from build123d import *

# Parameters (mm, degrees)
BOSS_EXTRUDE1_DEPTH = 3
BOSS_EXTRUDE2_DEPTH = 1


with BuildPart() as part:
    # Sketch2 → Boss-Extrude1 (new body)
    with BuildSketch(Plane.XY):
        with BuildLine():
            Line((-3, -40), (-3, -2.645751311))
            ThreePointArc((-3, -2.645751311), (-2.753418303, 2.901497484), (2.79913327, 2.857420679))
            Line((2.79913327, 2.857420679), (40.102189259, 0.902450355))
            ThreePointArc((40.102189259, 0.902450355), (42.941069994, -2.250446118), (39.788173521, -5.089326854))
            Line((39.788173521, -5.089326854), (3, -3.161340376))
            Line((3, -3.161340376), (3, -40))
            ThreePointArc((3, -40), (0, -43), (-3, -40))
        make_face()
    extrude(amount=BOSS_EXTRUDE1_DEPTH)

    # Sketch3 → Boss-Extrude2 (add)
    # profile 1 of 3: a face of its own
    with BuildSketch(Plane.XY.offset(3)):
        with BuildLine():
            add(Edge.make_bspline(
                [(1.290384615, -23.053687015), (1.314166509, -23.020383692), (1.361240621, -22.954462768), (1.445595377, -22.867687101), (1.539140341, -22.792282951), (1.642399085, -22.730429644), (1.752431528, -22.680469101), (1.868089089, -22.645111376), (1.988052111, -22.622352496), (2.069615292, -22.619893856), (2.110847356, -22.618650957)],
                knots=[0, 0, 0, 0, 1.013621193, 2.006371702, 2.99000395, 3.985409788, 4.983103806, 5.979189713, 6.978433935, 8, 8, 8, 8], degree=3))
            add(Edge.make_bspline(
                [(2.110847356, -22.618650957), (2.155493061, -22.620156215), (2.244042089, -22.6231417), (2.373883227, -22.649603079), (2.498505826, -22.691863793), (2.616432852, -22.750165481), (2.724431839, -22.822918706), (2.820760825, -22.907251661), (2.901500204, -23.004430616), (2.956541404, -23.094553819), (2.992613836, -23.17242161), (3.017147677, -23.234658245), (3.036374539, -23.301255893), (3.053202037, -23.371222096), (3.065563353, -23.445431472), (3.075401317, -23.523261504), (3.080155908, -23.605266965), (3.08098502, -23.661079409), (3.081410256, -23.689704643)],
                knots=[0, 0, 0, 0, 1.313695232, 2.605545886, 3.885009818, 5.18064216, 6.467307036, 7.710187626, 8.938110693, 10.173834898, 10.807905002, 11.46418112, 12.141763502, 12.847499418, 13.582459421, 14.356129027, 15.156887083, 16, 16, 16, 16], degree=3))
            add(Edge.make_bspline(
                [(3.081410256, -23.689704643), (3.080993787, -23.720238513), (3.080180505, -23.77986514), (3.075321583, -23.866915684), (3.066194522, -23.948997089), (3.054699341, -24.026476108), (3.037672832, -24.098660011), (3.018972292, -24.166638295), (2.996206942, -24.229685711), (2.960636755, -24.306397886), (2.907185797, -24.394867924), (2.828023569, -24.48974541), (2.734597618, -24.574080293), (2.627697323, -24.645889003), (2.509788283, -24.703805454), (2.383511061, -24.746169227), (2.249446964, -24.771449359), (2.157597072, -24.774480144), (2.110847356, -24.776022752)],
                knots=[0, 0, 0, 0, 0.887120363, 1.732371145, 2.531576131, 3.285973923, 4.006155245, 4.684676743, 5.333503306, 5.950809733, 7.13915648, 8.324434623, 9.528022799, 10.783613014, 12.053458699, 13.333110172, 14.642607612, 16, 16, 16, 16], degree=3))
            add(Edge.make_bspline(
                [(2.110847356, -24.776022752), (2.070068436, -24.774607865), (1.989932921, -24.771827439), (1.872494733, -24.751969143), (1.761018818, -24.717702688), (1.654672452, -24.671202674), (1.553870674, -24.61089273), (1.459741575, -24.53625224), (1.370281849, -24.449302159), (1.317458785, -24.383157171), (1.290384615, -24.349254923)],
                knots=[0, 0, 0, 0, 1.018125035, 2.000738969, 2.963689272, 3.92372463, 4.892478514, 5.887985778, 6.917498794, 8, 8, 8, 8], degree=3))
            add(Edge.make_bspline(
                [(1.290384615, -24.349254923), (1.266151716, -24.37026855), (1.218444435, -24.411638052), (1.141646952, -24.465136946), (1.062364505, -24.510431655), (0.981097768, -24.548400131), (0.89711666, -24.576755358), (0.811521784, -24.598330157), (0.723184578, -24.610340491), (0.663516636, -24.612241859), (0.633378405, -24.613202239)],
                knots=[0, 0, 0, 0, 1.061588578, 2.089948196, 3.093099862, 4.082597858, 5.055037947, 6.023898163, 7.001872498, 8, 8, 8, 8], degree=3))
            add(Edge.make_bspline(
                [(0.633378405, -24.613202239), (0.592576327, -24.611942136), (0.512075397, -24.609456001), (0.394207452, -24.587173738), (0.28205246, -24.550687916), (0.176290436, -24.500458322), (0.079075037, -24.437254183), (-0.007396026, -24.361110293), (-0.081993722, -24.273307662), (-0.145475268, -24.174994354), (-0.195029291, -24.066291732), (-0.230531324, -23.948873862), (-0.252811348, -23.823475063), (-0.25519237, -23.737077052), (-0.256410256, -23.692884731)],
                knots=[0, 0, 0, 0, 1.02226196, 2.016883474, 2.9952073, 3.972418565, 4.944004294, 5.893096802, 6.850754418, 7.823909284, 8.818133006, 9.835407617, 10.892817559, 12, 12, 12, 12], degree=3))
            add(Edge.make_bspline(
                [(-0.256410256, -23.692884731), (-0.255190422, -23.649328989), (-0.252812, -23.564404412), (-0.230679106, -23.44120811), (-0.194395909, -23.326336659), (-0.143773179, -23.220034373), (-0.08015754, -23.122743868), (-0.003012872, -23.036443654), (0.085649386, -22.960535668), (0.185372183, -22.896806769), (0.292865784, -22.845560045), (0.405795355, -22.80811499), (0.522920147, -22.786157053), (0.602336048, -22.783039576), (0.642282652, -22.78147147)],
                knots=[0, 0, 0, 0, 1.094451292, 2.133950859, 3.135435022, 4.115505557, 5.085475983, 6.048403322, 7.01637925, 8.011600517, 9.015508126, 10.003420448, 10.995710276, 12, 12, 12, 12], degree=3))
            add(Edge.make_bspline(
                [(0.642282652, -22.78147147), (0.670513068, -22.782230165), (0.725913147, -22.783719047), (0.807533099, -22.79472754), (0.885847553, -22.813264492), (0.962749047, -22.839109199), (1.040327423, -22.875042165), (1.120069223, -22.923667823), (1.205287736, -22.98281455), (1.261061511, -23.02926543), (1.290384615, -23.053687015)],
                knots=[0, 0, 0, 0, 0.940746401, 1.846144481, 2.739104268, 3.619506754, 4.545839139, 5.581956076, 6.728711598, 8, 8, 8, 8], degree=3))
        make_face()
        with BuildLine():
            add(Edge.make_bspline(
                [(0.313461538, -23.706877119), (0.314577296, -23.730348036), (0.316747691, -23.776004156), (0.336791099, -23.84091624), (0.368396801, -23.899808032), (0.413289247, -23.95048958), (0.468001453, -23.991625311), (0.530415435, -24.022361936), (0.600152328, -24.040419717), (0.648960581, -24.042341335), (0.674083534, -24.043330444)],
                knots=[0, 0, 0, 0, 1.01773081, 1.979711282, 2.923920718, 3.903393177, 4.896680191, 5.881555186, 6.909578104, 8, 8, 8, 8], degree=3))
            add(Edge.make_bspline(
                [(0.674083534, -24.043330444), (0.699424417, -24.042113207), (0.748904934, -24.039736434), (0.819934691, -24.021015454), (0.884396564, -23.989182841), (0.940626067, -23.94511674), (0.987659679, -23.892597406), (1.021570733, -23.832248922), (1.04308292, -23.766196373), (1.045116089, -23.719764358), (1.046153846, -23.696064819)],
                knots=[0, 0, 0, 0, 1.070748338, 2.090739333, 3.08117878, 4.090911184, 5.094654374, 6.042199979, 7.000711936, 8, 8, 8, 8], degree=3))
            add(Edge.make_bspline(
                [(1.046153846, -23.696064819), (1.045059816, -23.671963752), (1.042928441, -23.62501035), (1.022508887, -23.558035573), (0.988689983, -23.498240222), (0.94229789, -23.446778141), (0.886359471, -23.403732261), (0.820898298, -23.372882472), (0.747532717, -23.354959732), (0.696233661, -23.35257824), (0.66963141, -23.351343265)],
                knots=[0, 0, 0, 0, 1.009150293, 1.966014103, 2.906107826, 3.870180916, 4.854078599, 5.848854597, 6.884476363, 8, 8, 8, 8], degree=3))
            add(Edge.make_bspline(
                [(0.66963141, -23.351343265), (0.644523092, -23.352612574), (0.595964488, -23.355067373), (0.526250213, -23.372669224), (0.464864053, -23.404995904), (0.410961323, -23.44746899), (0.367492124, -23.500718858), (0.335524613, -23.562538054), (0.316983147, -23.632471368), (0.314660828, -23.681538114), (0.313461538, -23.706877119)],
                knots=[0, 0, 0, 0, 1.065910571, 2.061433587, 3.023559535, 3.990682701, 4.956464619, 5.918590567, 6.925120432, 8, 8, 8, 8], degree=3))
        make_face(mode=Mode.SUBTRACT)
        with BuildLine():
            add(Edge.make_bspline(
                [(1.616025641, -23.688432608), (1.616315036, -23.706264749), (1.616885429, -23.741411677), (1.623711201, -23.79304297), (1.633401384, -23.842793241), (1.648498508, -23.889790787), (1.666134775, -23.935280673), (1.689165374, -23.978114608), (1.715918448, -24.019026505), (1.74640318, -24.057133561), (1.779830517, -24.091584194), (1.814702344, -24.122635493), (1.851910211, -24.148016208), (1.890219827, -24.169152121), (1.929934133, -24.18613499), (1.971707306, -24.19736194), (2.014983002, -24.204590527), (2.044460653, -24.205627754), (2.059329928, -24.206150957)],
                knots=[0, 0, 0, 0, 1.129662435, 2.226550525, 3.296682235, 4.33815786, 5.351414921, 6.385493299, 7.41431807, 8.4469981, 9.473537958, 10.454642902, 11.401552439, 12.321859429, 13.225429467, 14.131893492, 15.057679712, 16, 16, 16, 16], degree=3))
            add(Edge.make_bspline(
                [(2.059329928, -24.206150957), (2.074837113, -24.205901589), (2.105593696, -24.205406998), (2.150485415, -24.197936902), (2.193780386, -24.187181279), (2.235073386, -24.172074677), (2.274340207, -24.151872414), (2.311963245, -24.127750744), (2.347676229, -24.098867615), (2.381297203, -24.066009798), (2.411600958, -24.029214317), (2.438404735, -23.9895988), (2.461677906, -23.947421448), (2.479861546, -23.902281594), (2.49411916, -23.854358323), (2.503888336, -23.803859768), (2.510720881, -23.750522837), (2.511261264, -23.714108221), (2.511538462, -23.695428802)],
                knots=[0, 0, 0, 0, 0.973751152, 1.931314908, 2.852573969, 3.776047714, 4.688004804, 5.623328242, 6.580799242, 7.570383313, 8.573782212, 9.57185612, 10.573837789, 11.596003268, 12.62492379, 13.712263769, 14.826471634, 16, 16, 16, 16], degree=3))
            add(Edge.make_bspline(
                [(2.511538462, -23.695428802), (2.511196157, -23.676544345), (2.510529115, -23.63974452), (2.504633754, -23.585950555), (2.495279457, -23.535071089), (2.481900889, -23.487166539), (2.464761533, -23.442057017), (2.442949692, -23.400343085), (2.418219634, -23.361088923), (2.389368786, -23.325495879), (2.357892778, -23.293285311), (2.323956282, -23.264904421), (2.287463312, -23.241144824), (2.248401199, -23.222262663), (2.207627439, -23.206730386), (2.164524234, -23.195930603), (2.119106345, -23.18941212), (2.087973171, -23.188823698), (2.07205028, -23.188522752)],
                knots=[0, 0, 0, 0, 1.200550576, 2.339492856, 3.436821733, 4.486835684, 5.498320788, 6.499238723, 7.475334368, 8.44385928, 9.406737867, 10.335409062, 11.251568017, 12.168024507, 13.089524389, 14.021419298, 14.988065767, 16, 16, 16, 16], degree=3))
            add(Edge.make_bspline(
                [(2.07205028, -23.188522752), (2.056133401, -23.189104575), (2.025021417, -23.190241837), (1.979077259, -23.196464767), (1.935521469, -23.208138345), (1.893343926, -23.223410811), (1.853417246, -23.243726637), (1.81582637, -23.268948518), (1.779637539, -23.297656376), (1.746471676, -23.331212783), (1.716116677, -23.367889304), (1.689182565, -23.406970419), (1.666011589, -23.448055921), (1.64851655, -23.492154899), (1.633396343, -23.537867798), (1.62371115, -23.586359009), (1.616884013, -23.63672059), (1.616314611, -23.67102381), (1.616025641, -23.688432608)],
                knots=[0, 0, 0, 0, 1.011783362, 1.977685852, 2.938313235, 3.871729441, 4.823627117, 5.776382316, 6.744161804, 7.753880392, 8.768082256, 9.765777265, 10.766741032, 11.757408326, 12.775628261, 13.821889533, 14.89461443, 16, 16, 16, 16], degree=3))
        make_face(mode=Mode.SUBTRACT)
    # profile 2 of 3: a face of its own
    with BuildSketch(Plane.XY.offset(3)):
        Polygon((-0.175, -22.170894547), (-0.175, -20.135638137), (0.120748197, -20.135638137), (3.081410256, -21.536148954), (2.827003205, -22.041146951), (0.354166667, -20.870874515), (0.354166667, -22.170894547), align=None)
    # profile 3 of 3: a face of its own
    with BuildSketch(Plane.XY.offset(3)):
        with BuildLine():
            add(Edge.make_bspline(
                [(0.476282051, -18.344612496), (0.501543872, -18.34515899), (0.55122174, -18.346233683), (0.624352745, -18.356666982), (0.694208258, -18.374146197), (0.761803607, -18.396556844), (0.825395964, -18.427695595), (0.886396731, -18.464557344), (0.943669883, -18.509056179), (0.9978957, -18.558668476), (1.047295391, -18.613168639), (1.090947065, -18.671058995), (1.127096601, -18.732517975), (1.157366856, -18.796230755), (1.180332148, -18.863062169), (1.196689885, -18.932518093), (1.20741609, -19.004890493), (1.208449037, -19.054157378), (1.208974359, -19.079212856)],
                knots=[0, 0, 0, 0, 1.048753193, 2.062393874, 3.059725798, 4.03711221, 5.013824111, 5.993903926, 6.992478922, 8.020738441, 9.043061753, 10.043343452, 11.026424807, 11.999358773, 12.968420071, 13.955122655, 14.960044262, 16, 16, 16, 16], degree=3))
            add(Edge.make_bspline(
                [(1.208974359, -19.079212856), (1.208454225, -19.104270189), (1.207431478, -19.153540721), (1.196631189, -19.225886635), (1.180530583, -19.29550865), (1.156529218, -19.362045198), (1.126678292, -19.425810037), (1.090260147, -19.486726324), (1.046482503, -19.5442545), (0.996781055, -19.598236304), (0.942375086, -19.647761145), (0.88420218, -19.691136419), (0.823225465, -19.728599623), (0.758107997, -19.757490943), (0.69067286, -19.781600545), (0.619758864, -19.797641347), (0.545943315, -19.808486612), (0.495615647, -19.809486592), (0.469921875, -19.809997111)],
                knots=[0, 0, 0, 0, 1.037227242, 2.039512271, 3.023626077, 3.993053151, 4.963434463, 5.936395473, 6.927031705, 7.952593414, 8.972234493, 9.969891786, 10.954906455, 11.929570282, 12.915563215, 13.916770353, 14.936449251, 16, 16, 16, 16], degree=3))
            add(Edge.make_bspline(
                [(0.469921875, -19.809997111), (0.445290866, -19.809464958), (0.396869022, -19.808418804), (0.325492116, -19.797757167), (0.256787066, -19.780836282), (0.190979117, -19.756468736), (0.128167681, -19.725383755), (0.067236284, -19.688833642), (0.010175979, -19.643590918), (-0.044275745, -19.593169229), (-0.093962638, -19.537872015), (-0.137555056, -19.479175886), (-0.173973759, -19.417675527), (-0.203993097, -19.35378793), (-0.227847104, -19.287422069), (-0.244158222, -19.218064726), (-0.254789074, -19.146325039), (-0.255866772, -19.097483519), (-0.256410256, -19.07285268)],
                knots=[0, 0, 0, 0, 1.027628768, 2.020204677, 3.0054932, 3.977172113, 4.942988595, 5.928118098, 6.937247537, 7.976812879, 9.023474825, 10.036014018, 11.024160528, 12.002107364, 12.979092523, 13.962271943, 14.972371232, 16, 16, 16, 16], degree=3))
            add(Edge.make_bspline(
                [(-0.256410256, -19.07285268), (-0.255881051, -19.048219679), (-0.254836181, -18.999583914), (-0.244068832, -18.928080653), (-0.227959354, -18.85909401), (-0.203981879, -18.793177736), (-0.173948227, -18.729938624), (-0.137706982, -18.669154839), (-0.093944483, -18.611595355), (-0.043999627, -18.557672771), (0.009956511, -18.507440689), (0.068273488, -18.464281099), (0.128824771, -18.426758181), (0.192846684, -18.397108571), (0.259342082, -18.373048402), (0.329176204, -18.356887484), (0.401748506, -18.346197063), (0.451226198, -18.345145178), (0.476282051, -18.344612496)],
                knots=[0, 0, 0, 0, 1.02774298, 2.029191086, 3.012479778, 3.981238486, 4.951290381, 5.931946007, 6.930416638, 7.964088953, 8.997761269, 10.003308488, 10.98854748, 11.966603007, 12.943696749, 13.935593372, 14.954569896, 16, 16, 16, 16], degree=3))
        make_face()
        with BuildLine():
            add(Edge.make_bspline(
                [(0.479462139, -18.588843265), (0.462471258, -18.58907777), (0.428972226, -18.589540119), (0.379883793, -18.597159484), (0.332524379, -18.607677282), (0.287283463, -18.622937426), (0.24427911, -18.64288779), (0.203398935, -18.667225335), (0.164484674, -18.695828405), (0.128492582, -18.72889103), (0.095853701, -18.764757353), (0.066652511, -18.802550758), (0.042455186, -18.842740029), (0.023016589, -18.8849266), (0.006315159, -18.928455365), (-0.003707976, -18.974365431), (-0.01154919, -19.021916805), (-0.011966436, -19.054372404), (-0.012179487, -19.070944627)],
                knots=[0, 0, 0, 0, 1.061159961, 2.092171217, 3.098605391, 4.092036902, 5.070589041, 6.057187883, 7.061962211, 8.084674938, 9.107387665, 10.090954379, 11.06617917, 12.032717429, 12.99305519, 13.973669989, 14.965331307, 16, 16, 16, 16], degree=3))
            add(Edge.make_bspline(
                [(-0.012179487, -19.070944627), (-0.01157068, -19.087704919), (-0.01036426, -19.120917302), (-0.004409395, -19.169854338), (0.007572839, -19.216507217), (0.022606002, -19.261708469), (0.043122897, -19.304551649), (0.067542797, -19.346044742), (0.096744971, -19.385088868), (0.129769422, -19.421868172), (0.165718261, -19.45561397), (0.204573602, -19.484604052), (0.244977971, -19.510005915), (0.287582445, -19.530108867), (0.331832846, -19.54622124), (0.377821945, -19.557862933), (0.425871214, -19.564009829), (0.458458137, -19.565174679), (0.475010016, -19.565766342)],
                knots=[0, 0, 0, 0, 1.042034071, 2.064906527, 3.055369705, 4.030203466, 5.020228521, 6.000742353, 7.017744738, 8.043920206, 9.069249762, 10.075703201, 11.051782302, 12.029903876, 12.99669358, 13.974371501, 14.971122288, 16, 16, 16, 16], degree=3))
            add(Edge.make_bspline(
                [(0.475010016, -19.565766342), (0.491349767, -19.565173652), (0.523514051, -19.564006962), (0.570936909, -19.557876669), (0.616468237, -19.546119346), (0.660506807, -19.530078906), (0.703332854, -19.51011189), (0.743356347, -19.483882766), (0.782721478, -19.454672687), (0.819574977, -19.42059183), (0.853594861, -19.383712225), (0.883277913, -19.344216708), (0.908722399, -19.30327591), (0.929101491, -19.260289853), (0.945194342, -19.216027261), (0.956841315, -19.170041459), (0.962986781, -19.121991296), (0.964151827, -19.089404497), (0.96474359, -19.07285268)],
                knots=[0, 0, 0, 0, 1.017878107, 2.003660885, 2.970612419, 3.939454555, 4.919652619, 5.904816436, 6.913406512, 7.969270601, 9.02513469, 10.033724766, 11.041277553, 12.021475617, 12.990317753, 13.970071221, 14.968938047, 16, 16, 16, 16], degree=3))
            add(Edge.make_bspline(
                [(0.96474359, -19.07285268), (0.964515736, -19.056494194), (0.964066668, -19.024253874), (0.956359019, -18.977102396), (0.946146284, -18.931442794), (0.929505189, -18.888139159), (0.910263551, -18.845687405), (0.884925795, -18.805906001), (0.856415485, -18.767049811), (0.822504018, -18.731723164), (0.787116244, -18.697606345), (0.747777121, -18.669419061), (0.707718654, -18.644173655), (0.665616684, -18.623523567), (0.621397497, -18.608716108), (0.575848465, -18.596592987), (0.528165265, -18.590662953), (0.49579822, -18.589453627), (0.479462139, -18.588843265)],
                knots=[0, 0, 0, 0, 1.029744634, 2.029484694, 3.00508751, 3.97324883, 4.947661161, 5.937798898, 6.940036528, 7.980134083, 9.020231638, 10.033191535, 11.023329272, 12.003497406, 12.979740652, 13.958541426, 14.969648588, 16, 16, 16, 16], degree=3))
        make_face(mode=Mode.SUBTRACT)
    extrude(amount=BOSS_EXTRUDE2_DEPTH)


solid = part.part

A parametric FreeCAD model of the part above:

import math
import FreeCAD as App
import Part
import Sketcher
Q = App.Units.Quantity


def add_polygon(sketch, points):
    """Adds a closed chain of lines whose ends are joined by coincident constraints."""
    first, n = sketch.GeometryCount, len(points)
    for a, b in zip(points, points[1:] + points[:1]):
        sketch.addGeometry(Part.LineSegment(App.Vector(*a, 0), App.Vector(*b, 0)), False)
    for i in range(n):
        sketch.addConstraint(Sketcher.Constraint("Coincident", first + i, 2, first + (i + 1) % n, 1))

doc = App.newDocument("Part")
params = doc.addObject("Spreadsheet::Sheet", "Params")
for row, (alias, value) in enumerate([
    ("sketch1_radius", "3 mm"),
    ("sketch1_radius2", "4 mm"),
    ("pad1_length", "3 mm"),
    ("pad2_length", "1 mm"),
], start=1):
    params.set(f"A{row}", alias)
    params.set(f"B{row}", "=" + value)
    params.setAlias(f"B{row}", alias)

body = doc.addObject("PartDesign::Body", "Body")

# Sketch on XY plane
sketch1 = body.newObject("Sketcher::SketchObject", "Sketch")
sketch1.AttachmentSupport = (doc.getObject("XY_Plane"), [""])
sketch1.MapMode = "FlatFace"
sketch1.addGeometry([
    Part.LineSegment(App.Vector(-3, -2.645751, 0), App.Vector(-3, -40, 0)),  # 0
    Part.ArcOfCircle(Part.Circle(App.Vector(0, -40, 0), App.Vector(0, 0, 1), 3), math.radians(180), math.radians(360)),  # 1
    Part.LineSegment(App.Vector(3, -40, 0), App.Vector(3, -3.16134, 0)),  # 2
    Part.LineSegment(App.Vector(3, -3.16134, 0), App.Vector(39.788174, -5.089327, 0)),  # 3
    Part.ArcOfCircle(Part.Circle(App.Vector(39.945181, -2.093438, 0), App.Vector(0, 0, 1), 3), math.radians(-93), math.radians(87)),  # 4
    Part.LineSegment(App.Vector(40.102189, 0.90245, 0), App.Vector(2.799133, 2.857421, 0)),  # 5
    Part.ArcOfCircle(Part.Circle(App.Vector(0, 0, 0), App.Vector(0, 0, 1), 4), math.radians(45.590378), math.radians(221.409622)),  # 6
], False)
sketch1.addConstraint([
    Sketcher.Constraint("Tangent", 0, 2, 1, 1),
    Sketcher.Constraint("Tangent", 1, 2, 2, 1),
    Sketcher.Constraint("Coincident", 2, 2, 3, 1),
    Sketcher.Constraint("Tangent", 3, 2, 4, 1),
    Sketcher.Constraint("Tangent", 4, 2, 5, 1),
    Sketcher.Constraint("Coincident", 5, 2, 6, 1),
    Sketcher.Constraint("Coincident", 6, 2, 0, 1),
    Sketcher.Constraint("Vertical", 0),
    Sketcher.Constraint("Vertical", 2),
    Sketcher.Constraint("Coincident", 6, 3, -1, 1),
    Sketcher.Constraint("Equal", 1, 4),
    Sketcher.Constraint("PointOnObject", 1, 3, -2),
    Sketcher.Constraint("Parallel", 3, 5),
    Sketcher.Constraint("Radius", 1, 3.0),
    Sketcher.Constraint("Radius", 6, 4.0),
    Sketcher.Constraint("Angle", 3, Q("-3 deg")),
    Sketcher.Constraint("DistanceY", 1, 3, -1, 1, 40.0),
    Sketcher.Constraint("DistanceY", 2, 1, 2, 2, 36.83866),
    Sketcher.Constraint("Distance", 3, 36.83866),
])
sketch1.setExpression("Constraints[13]", "Params.sketch1_radius")
sketch1.setExpression("Constraints[14]", "Params.sketch1_radius2")
pad1 = body.newObject("PartDesign::Pad", "Pad")
pad1.Profile = sketch1
pad1.setExpression("Length", "Params.pad1_length")

# Sketch on XY plane
sketch2 = body.newObject("Sketcher::SketchObject", "Sketch001")
sketch2.AttachmentSupport = (doc.getObject("XY_Plane"), [""])
sketch2.MapMode = "FlatFace"
sketch2.AttachmentOffset = App.Placement(App.Vector(0, 0, 3), App.Rotation())
sketch2.addGeometry(Part.BSplineCurve([App.Vector(1.290385, -23.053687, 0), App.Vector(1.314167, -23.020384, 0), App.Vector(1.361241, -22.954463, 0), App.Vector(1.445595, -22.867687, 0), App.Vector(1.53914, -22.792283, 0), App.Vector(1.642399, -22.73043, 0), App.Vector(1.752432, -22.680469, 0), App.Vector(1.868089, -22.645111, 0), App.Vector(1.988052, -22.622352, 0), App.Vector(2.069615, -22.619894, 0), App.Vector(2.110847, -22.618651, 0)], [4, 1, 1, 1, 1, 1, 1, 1, 4], [0, 1.013621193, 2.006371702, 2.99000395, 3.985409788, 4.983103806, 5.979189713, 6.978433935, 8], False, 3, [1, 1, 1, 1, 1, 1, 1, 1, 1, 1, 1], False), False)  # 0
sketch2.addGeometry(Part.BSplineCurve([App.Vector(0.642283, -22.781471, 0), App.Vector(0.670513, -22.78223, 0), App.Vector(0.725913, -22.783719, 0), App.Vector(0.807533, -22.794728, 0), App.Vector(0.885848, -22.813264, 0), App.Vector(0.962749, -22.839109, 0), App.Vector(1.040327, -22.875042, 0), App.Vector(1.120069, -22.923668, 0), App.Vector(1.205288, -22.982815, 0), App.Vector(1.261062, -23.029265, 0), App.Vector(1.290385, -23.053687, 0)], [4, 1, 1, 1, 1, 1, 1, 1, 4], [0, 0.940746401, 1.846144481, 2.739104268, 3.619506754, 4.545839139, 5.581956076, 6.728711598, 8], False, 3, [1, 1, 1, 1, 1, 1, 1, 1, 1, 1, 1], False), False)  # 1
sketch2.addGeometry(Part.BSplineCurve([App.Vector(-0.25641, -23.692885, 0), App.Vector(-0.25519, -23.649329, 0), App.Vector(-0.252812, -23.564404, 0), App.Vector(-0.230679, -23.441208, 0), App.Vector(-0.194396, -23.326337, 0), App.Vector(-0.143773, -23.220034, 0), App.Vector(-0.080158, -23.122744, 0), App.Vector(-0.003013, -23.036444, 0), App.Vector(0.085649, -22.960536, 0), App.Vector(0.185372, -22.896807, 0), App.Vector(0.292866, -22.84556, 0), App.Vector(0.405795, -22.808115, 0), App.Vector(0.52292, -22.786157, 0), App.Vector(0.602336, -22.78304, 0), App.Vector(0.642283, -22.781471, 0)], [4, 1, 1, 1, 1, 1, 1, 1, 1, 1, 1, 1, 4], [0, 1.094451292, 2.133950859, 3.135435022, 4.115505557, 5.085475983, 6.048403322, 7.01637925, 8.011600517, 9.015508126, 10.003420448, 10.995710276, 12], False, 3, [1, 1, 1, 1, 1, 1, 1, 1, 1, 1, 1, 1, 1, 1, 1], False), False)  # 2
sketch2.addGeometry(Part.BSplineCurve([App.Vector(0.633378, -24.613202, 0), App.Vector(0.592576, -24.611942, 0), App.Vector(0.512075, -24.609456, 0), App.Vector(0.394207, -24.587174, 0), App.Vector(0.282052, -24.550688, 0), App.Vector(0.17629, -24.500458, 0), App.Vector(0.079075, -24.437254, 0), App.Vector(-0.007396, -24.36111, 0), App.Vector(-0.081994, -24.273308, 0), App.Vector(-0.145475, -24.174994, 0), App.Vector(-0.195029, -24.066292, 0), App.Vector(-0.230531, -23.948874, 0), App.Vector(-0.252811, -23.823475, 0), App.Vector(-0.255192, -23.737077, 0), App.Vector(-0.25641, -23.692885, 0)], [4, 1, 1, 1, 1, 1, 1, 1, 1, 1, 1, 1, 4], [0, 1.02226196, 2.016883474, 2.9952073, 3.972418565, 4.944004294, 5.893096802, 6.850754418, 7.823909284, 8.818133006, 9.835407617, 10.892817559, 12], False, 3, [1, 1, 1, 1, 1, 1, 1, 1, 1, 1, 1, 1, 1, 1, 1], False), False)  # 3
sketch2.addGeometry(Part.BSplineCurve([App.Vector(1.290385, -24.349255, 0), App.Vector(1.266152, -24.370269, 0), App.Vector(1.218444, -24.411638, 0), App.Vector(1.141647, -24.465137, 0), App.Vector(1.062365, -24.510432, 0), App.Vector(0.981098, -24.5484, 0), App.Vector(0.897117, -24.576755, 0), App.Vector(0.811522, -24.59833, 0), App.Vector(0.723185, -24.61034, 0), App.Vector(0.663517, -24.612242, 0), App.Vector(0.633378, -24.613202, 0)], [4, 1, 1, 1, 1, 1, 1, 1, 4], [0, 1.061588578, 2.089948196, 3.093099862, 4.082597858, 5.055037947, 6.023898163, 7.001872498, 8], False, 3, [1, 1, 1, 1, 1, 1, 1, 1, 1, 1, 1], False), False)  # 4
sketch2.addGeometry(Part.BSplineCurve([App.Vector(2.110847, -24.776023, 0), App.Vector(2.070068, -24.774608, 0), App.Vector(1.989933, -24.771827, 0), App.Vector(1.872495, -24.751969, 0), App.Vector(1.761019, -24.717703, 0), App.Vector(1.654672, -24.671203, 0), App.Vector(1.553871, -24.610893, 0), App.Vector(1.459742, -24.536252, 0), App.Vector(1.370282, -24.449302, 0), App.Vector(1.317459, -24.383157, 0), App.Vector(1.290385, -24.349255, 0)], [4, 1, 1, 1, 1, 1, 1, 1, 4], [0, 1.018125035, 2.000738969, 2.963689272, 3.92372463, 4.892478514, 5.887985778, 6.917498794, 8], False, 3, [1, 1, 1, 1, 1, 1, 1, 1, 1, 1, 1], False), False)  # 5
sketch2.addGeometry(Part.BSplineCurve([App.Vector(3.08141, -23.689705, 0), App.Vector(3.080994, -23.720239, 0), App.Vector(3.080181, -23.779865, 0), App.Vector(3.075322, -23.866916, 0), App.Vector(3.066195, -23.948997, 0), App.Vector(3.054699, -24.026476, 0), App.Vector(3.037673, -24.09866, 0), App.Vector(3.018972, -24.166638, 0), App.Vector(2.996207, -24.229686, 0), App.Vector(2.960637, -24.306398, 0), App.Vector(2.907186, -24.394868, 0), App.Vector(2.828024, -24.489745, 0), App.Vector(2.734598, -24.57408, 0), App.Vector(2.627697, -24.645889, 0), App.Vector(2.509788, -24.703805, 0), App.Vector(2.383511, -24.746169, 0), App.Vector(2.249447, -24.771449, 0), App.Vector(2.157597, -24.77448, 0), App.Vector(2.110847, -24.776023, 0)], [4, 1, 1, 1, 1, 1, 1, 1, 1, 1, 1, 1, 1, 1, 1, 1, 4], [0, 0.887120363, 1.732371145, 2.531576131, 3.285973923, 4.006155245, 4.684676743, 5.333503306, 5.950809733, 7.13915648, 8.324434623, 9.528022799, 10.783613014, 12.053458699, 13.333110172, 14.642607612, 16], False, 3, [1, 1, 1, 1, 1, 1, 1, 1, 1, 1, 1, 1, 1, 1, 1, 1, 1, 1, 1], False), False)  # 6
sketch2.addGeometry(Part.BSplineCurve([App.Vector(2.110847, -22.618651, 0), App.Vector(2.155493, -22.620156, 0), App.Vector(2.244042, -22.623142, 0), App.Vector(2.373883, -22.649603, 0), App.Vector(2.498506, -22.691864, 0), App.Vector(2.616433, -22.750165, 0), App.Vector(2.724432, -22.822919, 0), App.Vector(2.820761, -22.907252, 0), App.Vector(2.9015, -23.004431, 0), App.Vector(2.956541, -23.094554, 0), App.Vector(2.992614, -23.172422, 0), App.Vector(3.017148, -23.234658, 0), App.Vector(3.036375, -23.301256, 0), App.Vector(3.053202, -23.371222, 0), App.Vector(3.065563, -23.445431, 0), App.Vector(3.075401, -23.523262, 0), App.Vector(3.080156, -23.605267, 0), App.Vector(3.080985, -23.661079, 0), App.Vector(3.08141, -23.689705, 0)], [4, 1, 1, 1, 1, 1, 1, 1, 1, 1, 1, 1, 1, 1, 1, 1, 4], [0, 1.313695232, 2.605545886, 3.885009818, 5.18064216, 6.467307036, 7.710187626, 8.938110693, 10.173834898, 10.807905002, 11.46418112, 12.141763502, 12.847499418, 13.582459421, 14.356129027, 15.156887083, 16], False, 3, [1, 1, 1, 1, 1, 1, 1, 1, 1, 1, 1, 1, 1, 1, 1, 1, 1, 1, 1], False), False)  # 7
sketch2.addGeometry(Part.BSplineCurve([App.Vector(2.07205, -23.188523, 0), App.Vector(2.056133, -23.189105, 0), App.Vector(2.025021, -23.190242, 0), App.Vector(1.979077, -23.196465, 0), App.Vector(1.935521, -23.208138, 0), App.Vector(1.893344, -23.223411, 0), App.Vector(1.853417, -23.243727, 0), App.Vector(1.815826, -23.268949, 0), App.Vector(1.779638, -23.297656, 0), App.Vector(1.746472, -23.331213, 0), App.Vector(1.716117, -23.367889, 0), App.Vector(1.689183, -23.40697, 0), App.Vector(1.666012, -23.448056, 0), App.Vector(1.648517, -23.492155, 0), App.Vector(1.633396, -23.537868, 0), App.Vector(1.623711, -23.586359, 0), App.Vector(1.616884, -23.636721, 0), App.Vector(1.616315, -23.671024, 0), App.Vector(1.616026, -23.688433, 0)], [4, 1, 1, 1, 1, 1, 1, 1, 1, 1, 1, 1, 1, 1, 1, 1, 4], [0, 1.011783362, 1.977685852, 2.938313235, 3.871729441, 4.823627117, 5.776382316, 6.744161804, 7.753880392, 8.768082256, 9.765777265, 10.766741032, 11.757408326, 12.775628261, 13.821889533, 14.89461443, 16], False, 3, [1, 1, 1, 1, 1, 1, 1, 1, 1, 1, 1, 1, 1, 1, 1, 1, 1, 1, 1], False), False)  # 8
sketch2.addGeometry(Part.BSplineCurve([App.Vector(2.511538, -23.695429, 0), App.Vector(2.511196, -23.676544, 0), App.Vector(2.510529, -23.639745, 0), App.Vector(2.504634, -23.585951, 0), App.Vector(2.495279, -23.535071, 0), App.Vector(2.481901, -23.487167, 0), App.Vector(2.464762, -23.442057, 0), App.Vector(2.44295, -23.400343, 0), App.Vector(2.41822, -23.361089, 0), App.Vector(2.389369, -23.325496, 0), App.Vector(2.357893, -23.293285, 0), App.Vector(2.323956, -23.264904, 0), App.Vector(2.287463, -23.241145, 0), App.Vector(2.248401, -23.222263, 0), App.Vector(2.207627, -23.20673, 0), App.Vector(2.164524, -23.195931, 0), App.Vector(2.119106, -23.189412, 0), App.Vector(2.087973, -23.188824, 0), App.Vector(2.07205, -23.188523, 0)], [4, 1, 1, 1, 1, 1, 1, 1, 1, 1, 1, 1, 1, 1, 1, 1, 4], [0, 1.200550576, 2.339492856, 3.436821733, 4.486835684, 5.498320788, 6.499238723, 7.475334368, 8.44385928, 9.406737867, 10.335409062, 11.251568017, 12.168024507, 13.089524389, 14.021419298, 14.988065767, 16], False, 3, [1, 1, 1, 1, 1, 1, 1, 1, 1, 1, 1, 1, 1, 1, 1, 1, 1, 1, 1], False), False)  # 9
sketch2.addGeometry(Part.BSplineCurve([App.Vector(2.05933, -24.206151, 0), App.Vector(2.074837, -24.205902, 0), App.Vector(2.105594, -24.205407, 0), App.Vector(2.150485, -24.197937, 0), App.Vector(2.19378, -24.187181, 0), App.Vector(2.235073, -24.172075, 0), App.Vector(2.27434, -24.151872, 0), App.Vector(2.311963, -24.127751, 0), App.Vector(2.347676, -24.098868, 0), App.Vector(2.381297, -24.06601, 0), App.Vector(2.411601, -24.029214, 0), App.Vector(2.438405, -23.989599, 0), App.Vector(2.461678, -23.947421, 0), App.Vector(2.479862, -23.902282, 0), App.Vector(2.494119, -23.854358, 0), App.Vector(2.503888, -23.80386, 0), App.Vector(2.510721, -23.750523, 0), App.Vector(2.511261, -23.714108, 0), App.Vector(2.511538, -23.695429, 0)], [4, 1, 1, 1, 1, 1, 1, 1, 1, 1, 1, 1, 1, 1, 1, 1, 4], [0, 0.973751152, 1.931314908, 2.852573969, 3.776047714, 4.688004804, 5.623328242, 6.580799242, 7.570383313, 8.573782212, 9.57185612, 10.573837789, 11.596003268, 12.62492379, 13.712263769, 14.826471634, 16], False, 3, [1, 1, 1, 1, 1, 1, 1, 1, 1, 1, 1, 1, 1, 1, 1, 1, 1, 1, 1], False), False)  # 10
sketch2.addGeometry(Part.BSplineCurve([App.Vector(1.616026, -23.688433, 0), App.Vector(1.616315, -23.706265, 0), App.Vector(1.616885, -23.741412, 0), App.Vector(1.623711, -23.793043, 0), App.Vector(1.633401, -23.842793, 0), App.Vector(1.648499, -23.889791, 0), App.Vector(1.666135, -23.935281, 0), App.Vector(1.689165, -23.978115, 0), App.Vector(1.715918, -24.019027, 0), App.Vector(1.746403, -24.057134, 0), App.Vector(1.779831, -24.091584, 0), App.Vector(1.814702, -24.122635, 0), App.Vector(1.85191, -24.148016, 0), App.Vector(1.89022, -24.169152, 0), App.Vector(1.929934, -24.186135, 0), App.Vector(1.971707, -24.197362, 0), App.Vector(2.014983, -24.204591, 0), App.Vector(2.044461, -24.205628, 0), App.Vector(2.05933, -24.206151, 0)], [4, 1, 1, 1, 1, 1, 1, 1, 1, 1, 1, 1, 1, 1, 1, 1, 4], [0, 1.129662435, 2.226550525, 3.296682235, 4.33815786, 5.351414921, 6.385493299, 7.41431807, 8.4469981, 9.473537958, 10.454642902, 11.401552439, 12.321859429, 13.225429467, 14.131893492, 15.057679712, 16], False, 3, [1, 1, 1, 1, 1, 1, 1, 1, 1, 1, 1, 1, 1, 1, 1, 1, 1, 1, 1], False), False)  # 11
sketch2.addGeometry(Part.BSplineCurve([App.Vector(0.669631, -23.351343, 0), App.Vector(0.644523, -23.352613, 0), App.Vector(0.595964, -23.355067, 0), App.Vector(0.52625, -23.372669, 0), App.Vector(0.464864, -23.404996, 0), App.Vector(0.410961, -23.447469, 0), App.Vector(0.367492, -23.500719, 0), App.Vector(0.335525, -23.562538, 0), App.Vector(0.316983, -23.632471, 0), App.Vector(0.314661, -23.681538, 0), App.Vector(0.313462, -23.706877, 0)], [4, 1, 1, 1, 1, 1, 1, 1, 4], [0, 1.065910571, 2.061433587, 3.023559535, 3.990682701, 4.956464619, 5.918590567, 6.925120432, 8], False, 3, [1, 1, 1, 1, 1, 1, 1, 1, 1, 1, 1], False), False)  # 12
sketch2.addGeometry(Part.BSplineCurve([App.Vector(1.046154, -23.696065, 0), App.Vector(1.04506, -23.671964, 0), App.Vector(1.042928, -23.62501, 0), App.Vector(1.022509, -23.558036, 0), App.Vector(0.98869, -23.49824, 0), App.Vector(0.942298, -23.446778, 0), App.Vector(0.886359, -23.403732, 0), App.Vector(0.820898, -23.372882, 0), App.Vector(0.747533, -23.35496, 0), App.Vector(0.696234, -23.352578, 0), App.Vector(0.669631, -23.351343, 0)], [4, 1, 1, 1, 1, 1, 1, 1, 4], [0, 1.009150293, 1.966014103, 2.906107826, 3.870180916, 4.854078599, 5.848854597, 6.884476363, 8], False, 3, [1, 1, 1, 1, 1, 1, 1, 1, 1, 1, 1], False), False)  # 13
sketch2.addGeometry(Part.BSplineCurve([App.Vector(0.674084, -24.04333, 0), App.Vector(0.699424, -24.042113, 0), App.Vector(0.748905, -24.039736, 0), App.Vector(0.819935, -24.021015, 0), App.Vector(0.884397, -23.989183, 0), App.Vector(0.940626, -23.945117, 0), App.Vector(0.98766, -23.892597, 0), App.Vector(1.021571, -23.832249, 0), App.Vector(1.043083, -23.766196, 0), App.Vector(1.045116, -23.719764, 0), App.Vector(1.046154, -23.696065, 0)], [4, 1, 1, 1, 1, 1, 1, 1, 4], [0, 1.070748338, 2.090739333, 3.08117878, 4.090911184, 5.094654374, 6.042199979, 7.000711936, 8], False, 3, [1, 1, 1, 1, 1, 1, 1, 1, 1, 1, 1], False), False)  # 14
sketch2.addGeometry(Part.BSplineCurve([App.Vector(0.313462, -23.706877, 0), App.Vector(0.314577, -23.730348, 0), App.Vector(0.316748, -23.776004, 0), App.Vector(0.336791, -23.840916, 0), App.Vector(0.368397, -23.899808, 0), App.Vector(0.413289, -23.95049, 0), App.Vector(0.468001, -23.991625, 0), App.Vector(0.530415, -24.022362, 0), App.Vector(0.600152, -24.04042, 0), App.Vector(0.648961, -24.042341, 0), App.Vector(0.674084, -24.04333, 0)], [4, 1, 1, 1, 1, 1, 1, 1, 4], [0, 1.01773081, 1.979711282, 2.923920718, 3.903393177, 4.896680191, 5.881555186, 6.909578104, 8], False, 3, [1, 1, 1, 1, 1, 1, 1, 1, 1, 1, 1], False), False)  # 15
add_polygon(sketch2, [(-0.175, -20.135638), (-0.175, -22.170895), (0.354167, -22.170895), (0.354167, -20.870875), (2.827003, -22.041147), (3.08141, -21.536149), (0.120748, -20.135638)])  # lines 16-22
sketch2.addGeometry(Part.BSplineCurve([App.Vector(0.476282, -18.344612, 0), App.Vector(0.501544, -18.345159, 0), App.Vector(0.551222, -18.346234, 0), App.Vector(0.624353, -18.356667, 0), App.Vector(0.694208, -18.374146, 0), App.Vector(0.761804, -18.396557, 0), App.Vector(0.825396, -18.427696, 0), App.Vector(0.886397, -18.464557, 0), App.Vector(0.94367, -18.509056, 0), App.Vector(0.997896, -18.558668, 0), App.Vector(1.047295, -18.613169, 0), App.Vector(1.090947, -18.671059, 0), App.Vector(1.127097, -18.732518, 0), App.Vector(1.157367, -18.796231, 0), App.Vector(1.180332, -18.863062, 0), App.Vector(1.19669, -18.932518, 0), App.Vector(1.207416, -19.00489, 0), App.Vector(1.208449, -19.054157, 0), App.Vector(1.208974, -19.079213, 0)], [4, 1, 1, 1, 1, 1, 1, 1, 1, 1, 1, 1, 1, 1, 1, 1, 4], [0, 1.048753193, 2.062393874, 3.059725798, 4.03711221, 5.013824111, 5.993903926, 6.992478922, 8.020738441, 9.043061753, 10.043343452, 11.026424807, 11.999358773, 12.968420071, 13.955122655, 14.960044262, 16], False, 3, [1, 1, 1, 1, 1, 1, 1, 1, 1, 1, 1, 1, 1, 1, 1, 1, 1, 1, 1], False), False)  # 23
sketch2.addGeometry(Part.BSplineCurve([App.Vector(-0.25641, -19.072853, 0), App.Vector(-0.255881, -19.04822, 0), App.Vector(-0.254836, -18.999584, 0), App.Vector(-0.244069, -18.928081, 0), App.Vector(-0.227959, -18.859094, 0), App.Vector(-0.203982, -18.793178, 0), App.Vector(-0.173948, -18.729939, 0), App.Vector(-0.137707, -18.669155, 0), App.Vector(-0.093944, -18.611595, 0), App.Vector(-0.044, -18.557673, 0), App.Vector(0.009957, -18.507441, 0), App.Vector(0.068273, -18.464281, 0), App.Vector(0.128825, -18.426758, 0), App.Vector(0.192847, -18.397109, 0), App.Vector(0.259342, -18.373048, 0), App.Vector(0.329176, -18.356887, 0), App.Vector(0.401749, -18.346197, 0), App.Vector(0.451226, -18.345145, 0), App.Vector(0.476282, -18.344612, 0)], [4, 1, 1, 1, 1, 1, 1, 1, 1, 1, 1, 1, 1, 1, 1, 1, 4], [0, 1.02774298, 2.029191086, 3.012479778, 3.981238486, 4.951290381, 5.931946007, 6.930416638, 7.964088953, 8.997761269, 10.003308488, 10.98854748, 11.966603007, 12.943696749, 13.935593372, 14.954569896, 16], False, 3, [1, 1, 1, 1, 1, 1, 1, 1, 1, 1, 1, 1, 1, 1, 1, 1, 1, 1, 1], False), False)  # 24
sketch2.addGeometry(Part.BSplineCurve([App.Vector(0.469922, -19.809997, 0), App.Vector(0.445291, -19.809465, 0), App.Vector(0.396869, -19.808419, 0), App.Vector(0.325492, -19.797757, 0), App.Vector(0.256787, -19.780836, 0), App.Vector(0.190979, -19.756469, 0), App.Vector(0.128168, -19.725384, 0), App.Vector(0.067236, -19.688834, 0), App.Vector(0.010176, -19.643591, 0), App.Vector(-0.044276, -19.593169, 0), App.Vector(-0.093963, -19.537872, 0), App.Vector(-0.137555, -19.479176, 0), App.Vector(-0.173974, -19.417676, 0), App.Vector(-0.203993, -19.353788, 0), App.Vector(-0.227847, -19.287422, 0), App.Vector(-0.244158, -19.218065, 0), App.Vector(-0.254789, -19.146325, 0), App.Vector(-0.255867, -19.097484, 0), App.Vector(-0.25641, -19.072853, 0)], [4, 1, 1, 1, 1, 1, 1, 1, 1, 1, 1, 1, 1, 1, 1, 1, 4], [0, 1.027628768, 2.020204677, 3.0054932, 3.977172113, 4.942988595, 5.928118098, 6.937247537, 7.976812879, 9.023474825, 10.036014018, 11.024160528, 12.002107364, 12.979092523, 13.962271943, 14.972371232, 16], False, 3, [1, 1, 1, 1, 1, 1, 1, 1, 1, 1, 1, 1, 1, 1, 1, 1, 1, 1, 1], False), False)  # 25
sketch2.addGeometry(Part.BSplineCurve([App.Vector(1.208974, -19.079213, 0), App.Vector(1.208454, -19.10427, 0), App.Vector(1.207431, -19.153541, 0), App.Vector(1.196631, -19.225887, 0), App.Vector(1.180531, -19.295509, 0), App.Vector(1.156529, -19.362045, 0), App.Vector(1.126678, -19.42581, 0), App.Vector(1.09026, -19.486726, 0), App.Vector(1.046483, -19.544255, 0), App.Vector(0.996781, -19.598236, 0), App.Vector(0.942375, -19.647761, 0), App.Vector(0.884202, -19.691136, 0), App.Vector(0.823225, -19.7286, 0), App.Vector(0.758108, -19.757491, 0), App.Vector(0.690673, -19.781601, 0), App.Vector(0.619759, -19.797641, 0), App.Vector(0.545943, -19.808487, 0), App.Vector(0.495616, -19.809487, 0), App.Vector(0.469922, -19.809997, 0)], [4, 1, 1, 1, 1, 1, 1, 1, 1, 1, 1, 1, 1, 1, 1, 1, 4], [0, 1.037227242, 2.039512271, 3.023626077, 3.993053151, 4.963434463, 5.936395473, 6.927031705, 7.952593414, 8.972234493, 9.969891786, 10.954906455, 11.929570282, 12.915563215, 13.916770353, 14.936449251, 16], False, 3, [1, 1, 1, 1, 1, 1, 1, 1, 1, 1, 1, 1, 1, 1, 1, 1, 1, 1, 1], False), False)  # 26
sketch2.addGeometry(Part.BSplineCurve([App.Vector(0.964744, -19.072853, 0), App.Vector(0.964516, -19.056494, 0), App.Vector(0.964067, -19.024254, 0), App.Vector(0.956359, -18.977102, 0), App.Vector(0.946146, -18.931443, 0), App.Vector(0.929505, -18.888139, 0), App.Vector(0.910264, -18.845687, 0), App.Vector(0.884926, -18.805906, 0), App.Vector(0.856415, -18.76705, 0), App.Vector(0.822504, -18.731723, 0), App.Vector(0.787116, -18.697606, 0), App.Vector(0.747777, -18.669419, 0), App.Vector(0.707719, -18.644174, 0), App.Vector(0.665617, -18.623524, 0), App.Vector(0.621397, -18.608716, 0), App.Vector(0.575848, -18.596593, 0), App.Vector(0.528165, -18.590663, 0), App.Vector(0.495798, -18.589454, 0), App.Vector(0.479462, -18.588843, 0)], [4, 1, 1, 1, 1, 1, 1, 1, 1, 1, 1, 1, 1, 1, 1, 1, 4], [0, 1.029744634, 2.029484694, 3.00508751, 3.97324883, 4.947661161, 5.937798898, 6.940036528, 7.980134083, 9.020231638, 10.033191535, 11.023329272, 12.003497406, 12.979740652, 13.958541426, 14.969648588, 16], False, 3, [1, 1, 1, 1, 1, 1, 1, 1, 1, 1, 1, 1, 1, 1, 1, 1, 1, 1, 1], False), False)  # 27
sketch2.addGeometry(Part.BSplineCurve([App.Vector(0.47501, -19.565766, 0), App.Vector(0.49135, -19.565174, 0), App.Vector(0.523514, -19.564007, 0), App.Vector(0.570937, -19.557877, 0), App.Vector(0.616468, -19.546119, 0), App.Vector(0.660507, -19.530079, 0), App.Vector(0.703333, -19.510112, 0), App.Vector(0.743356, -19.483883, 0), App.Vector(0.782721, -19.454673, 0), App.Vector(0.819575, -19.420592, 0), App.Vector(0.853595, -19.383712, 0), App.Vector(0.883278, -19.344217, 0), App.Vector(0.908722, -19.303276, 0), App.Vector(0.929101, -19.26029, 0), App.Vector(0.945194, -19.216027, 0), App.Vector(0.956841, -19.170041, 0), App.Vector(0.962987, -19.121991, 0), App.Vector(0.964152, -19.089404, 0), App.Vector(0.964744, -19.072853, 0)], [4, 1, 1, 1, 1, 1, 1, 1, 1, 1, 1, 1, 1, 1, 1, 1, 4], [0, 1.017878107, 2.003660885, 2.970612419, 3.939454555, 4.919652619, 5.904816436, 6.913406512, 7.969270601, 9.02513469, 10.033724766, 11.041277553, 12.021475617, 12.990317753, 13.970071221, 14.968938047, 16], False, 3, [1, 1, 1, 1, 1, 1, 1, 1, 1, 1, 1, 1, 1, 1, 1, 1, 1, 1, 1], False), False)  # 28
sketch2.addGeometry(Part.BSplineCurve([App.Vector(-0.012179, -19.070945, 0), App.Vector(-0.011571, -19.087705, 0), App.Vector(-0.010364, -19.120917, 0), App.Vector(-0.004409, -19.169854, 0), App.Vector(0.007573, -19.216507, 0), App.Vector(0.022606, -19.261708, 0), App.Vector(0.043123, -19.304552, 0), App.Vector(0.067543, -19.346045, 0), App.Vector(0.096745, -19.385089, 0), App.Vector(0.129769, -19.421868, 0), App.Vector(0.165718, -19.455614, 0), App.Vector(0.204574, -19.484604, 0), App.Vector(0.244978, -19.510006, 0), App.Vector(0.287582, -19.530109, 0), App.Vector(0.331833, -19.546221, 0), App.Vector(0.377822, -19.557863, 0), App.Vector(0.425871, -19.56401, 0), App.Vector(0.458458, -19.565175, 0), App.Vector(0.47501, -19.565766, 0)], [4, 1, 1, 1, 1, 1, 1, 1, 1, 1, 1, 1, 1, 1, 1, 1, 4], [0, 1.042034071, 2.064906527, 3.055369705, 4.030203466, 5.020228521, 6.000742353, 7.017744738, 8.043920206, 9.069249762, 10.075703201, 11.051782302, 12.029903876, 12.99669358, 13.974371501, 14.971122288, 16], False, 3, [1, 1, 1, 1, 1, 1, 1, 1, 1, 1, 1, 1, 1, 1, 1, 1, 1, 1, 1], False), False)  # 29
sketch2.addGeometry(Part.BSplineCurve([App.Vector(0.479462, -18.588843, 0), App.Vector(0.462471, -18.589078, 0), App.Vector(0.428972, -18.58954, 0), App.Vector(0.379884, -18.597159, 0), App.Vector(0.332524, -18.607677, 0), App.Vector(0.287283, -18.622937, 0), App.Vector(0.244279, -18.642888, 0), App.Vector(0.203399, -18.667225, 0), App.Vector(0.164485, -18.695828, 0), App.Vector(0.128493, -18.728891, 0), App.Vector(0.095854, -18.764757, 0), App.Vector(0.066653, -18.802551, 0), App.Vector(0.042455, -18.84274, 0), App.Vector(0.023017, -18.884927, 0), App.Vector(0.006315, -18.928455, 0), App.Vector(-0.003708, -18.974365, 0), App.Vector(-0.011549, -19.021917, 0), App.Vector(-0.011966, -19.054372, 0), App.Vector(-0.012179, -19.070945, 0)], [4, 1, 1, 1, 1, 1, 1, 1, 1, 1, 1, 1, 1, 1, 1, 1, 4], [0, 1.061159961, 2.092171217, 3.098605391, 4.092036902, 5.070589041, 6.057187883, 7.061962211, 8.084674938, 9.107387665, 10.090954379, 11.06617917, 12.032717429, 12.99305519, 13.973669989, 14.965331307, 16], False, 3, [1, 1, 1, 1, 1, 1, 1, 1, 1, 1, 1, 1, 1, 1, 1, 1, 1, 1, 1], False), False)  # 30
sketch2.addConstraint([
    Sketcher.Constraint("Block", 0),
    Sketcher.Constraint("Block", 1),
    Sketcher.Constraint("Block", 2),
    Sketcher.Constraint("Block", 3),
    Sketcher.Constraint("Block", 4),
    Sketcher.Constraint("Block", 5),
    Sketcher.Constraint("Block", 6),
    Sketcher.Constraint("Block", 7),
    Sketcher.Constraint("Block", 8),
    Sketcher.Constraint("Block", 9),
    Sketcher.Constraint("Block", 10),
    Sketcher.Constraint("Block", 11),
    Sketcher.Constraint("Block", 12),
    Sketcher.Constraint("Block", 13),
    Sketcher.Constraint("Block", 14),
    Sketcher.Constraint("Block", 15),
    Sketcher.Constraint("Block", 23),
    Sketcher.Constraint("Block", 24),
    Sketcher.Constraint("Block", 25),
    Sketcher.Constraint("Block", 26),
    Sketcher.Constraint("Block", 27),
    Sketcher.Constraint("Block", 28),
    Sketcher.Constraint("Block", 29),
    Sketcher.Constraint("Block", 30),
    Sketcher.Constraint("Vertical", 16),
    Sketcher.Constraint("Horizontal", 17),
    Sketcher.Constraint("Vertical", 18),
    Sketcher.Constraint("Horizontal", 22),
    Sketcher.Constraint("DistanceX", 16, 2, -1, 1, 0.175),
    Sketcher.Constraint("DistanceX", 22, 2, 22, 1, 0.295748),
    Sketcher.Constraint("DistanceY", 18, 1, 18, 2, 1.30002),
    Sketcher.Constraint("Distance", 20, 0.565461),
    Sketcher.Constraint("DistanceX", 17, 1, 17, 2, 0.529167),
    Sketcher.Constraint("DistanceY", 16, 2, 16, 1, 2.035256),
    Sketcher.Constraint("DistanceX", -1, 1, 20, 2, 3.08141),
    Sketcher.Constraint("DistanceY", 20, 2, -1, 1, 21.536149),
    Sketcher.Constraint("DistanceY", 21, 2, -1, 1, 20.135638),
    Sketcher.Constraint("DistanceY", 19, 2, 21, 2, 1.905509),
])
pad2 = body.newObject("PartDesign::Pad", "Pad001")
pad2.Profile = sketch2
pad2.setExpression("Length", "Params.pad2_length")

doc.recompute()
